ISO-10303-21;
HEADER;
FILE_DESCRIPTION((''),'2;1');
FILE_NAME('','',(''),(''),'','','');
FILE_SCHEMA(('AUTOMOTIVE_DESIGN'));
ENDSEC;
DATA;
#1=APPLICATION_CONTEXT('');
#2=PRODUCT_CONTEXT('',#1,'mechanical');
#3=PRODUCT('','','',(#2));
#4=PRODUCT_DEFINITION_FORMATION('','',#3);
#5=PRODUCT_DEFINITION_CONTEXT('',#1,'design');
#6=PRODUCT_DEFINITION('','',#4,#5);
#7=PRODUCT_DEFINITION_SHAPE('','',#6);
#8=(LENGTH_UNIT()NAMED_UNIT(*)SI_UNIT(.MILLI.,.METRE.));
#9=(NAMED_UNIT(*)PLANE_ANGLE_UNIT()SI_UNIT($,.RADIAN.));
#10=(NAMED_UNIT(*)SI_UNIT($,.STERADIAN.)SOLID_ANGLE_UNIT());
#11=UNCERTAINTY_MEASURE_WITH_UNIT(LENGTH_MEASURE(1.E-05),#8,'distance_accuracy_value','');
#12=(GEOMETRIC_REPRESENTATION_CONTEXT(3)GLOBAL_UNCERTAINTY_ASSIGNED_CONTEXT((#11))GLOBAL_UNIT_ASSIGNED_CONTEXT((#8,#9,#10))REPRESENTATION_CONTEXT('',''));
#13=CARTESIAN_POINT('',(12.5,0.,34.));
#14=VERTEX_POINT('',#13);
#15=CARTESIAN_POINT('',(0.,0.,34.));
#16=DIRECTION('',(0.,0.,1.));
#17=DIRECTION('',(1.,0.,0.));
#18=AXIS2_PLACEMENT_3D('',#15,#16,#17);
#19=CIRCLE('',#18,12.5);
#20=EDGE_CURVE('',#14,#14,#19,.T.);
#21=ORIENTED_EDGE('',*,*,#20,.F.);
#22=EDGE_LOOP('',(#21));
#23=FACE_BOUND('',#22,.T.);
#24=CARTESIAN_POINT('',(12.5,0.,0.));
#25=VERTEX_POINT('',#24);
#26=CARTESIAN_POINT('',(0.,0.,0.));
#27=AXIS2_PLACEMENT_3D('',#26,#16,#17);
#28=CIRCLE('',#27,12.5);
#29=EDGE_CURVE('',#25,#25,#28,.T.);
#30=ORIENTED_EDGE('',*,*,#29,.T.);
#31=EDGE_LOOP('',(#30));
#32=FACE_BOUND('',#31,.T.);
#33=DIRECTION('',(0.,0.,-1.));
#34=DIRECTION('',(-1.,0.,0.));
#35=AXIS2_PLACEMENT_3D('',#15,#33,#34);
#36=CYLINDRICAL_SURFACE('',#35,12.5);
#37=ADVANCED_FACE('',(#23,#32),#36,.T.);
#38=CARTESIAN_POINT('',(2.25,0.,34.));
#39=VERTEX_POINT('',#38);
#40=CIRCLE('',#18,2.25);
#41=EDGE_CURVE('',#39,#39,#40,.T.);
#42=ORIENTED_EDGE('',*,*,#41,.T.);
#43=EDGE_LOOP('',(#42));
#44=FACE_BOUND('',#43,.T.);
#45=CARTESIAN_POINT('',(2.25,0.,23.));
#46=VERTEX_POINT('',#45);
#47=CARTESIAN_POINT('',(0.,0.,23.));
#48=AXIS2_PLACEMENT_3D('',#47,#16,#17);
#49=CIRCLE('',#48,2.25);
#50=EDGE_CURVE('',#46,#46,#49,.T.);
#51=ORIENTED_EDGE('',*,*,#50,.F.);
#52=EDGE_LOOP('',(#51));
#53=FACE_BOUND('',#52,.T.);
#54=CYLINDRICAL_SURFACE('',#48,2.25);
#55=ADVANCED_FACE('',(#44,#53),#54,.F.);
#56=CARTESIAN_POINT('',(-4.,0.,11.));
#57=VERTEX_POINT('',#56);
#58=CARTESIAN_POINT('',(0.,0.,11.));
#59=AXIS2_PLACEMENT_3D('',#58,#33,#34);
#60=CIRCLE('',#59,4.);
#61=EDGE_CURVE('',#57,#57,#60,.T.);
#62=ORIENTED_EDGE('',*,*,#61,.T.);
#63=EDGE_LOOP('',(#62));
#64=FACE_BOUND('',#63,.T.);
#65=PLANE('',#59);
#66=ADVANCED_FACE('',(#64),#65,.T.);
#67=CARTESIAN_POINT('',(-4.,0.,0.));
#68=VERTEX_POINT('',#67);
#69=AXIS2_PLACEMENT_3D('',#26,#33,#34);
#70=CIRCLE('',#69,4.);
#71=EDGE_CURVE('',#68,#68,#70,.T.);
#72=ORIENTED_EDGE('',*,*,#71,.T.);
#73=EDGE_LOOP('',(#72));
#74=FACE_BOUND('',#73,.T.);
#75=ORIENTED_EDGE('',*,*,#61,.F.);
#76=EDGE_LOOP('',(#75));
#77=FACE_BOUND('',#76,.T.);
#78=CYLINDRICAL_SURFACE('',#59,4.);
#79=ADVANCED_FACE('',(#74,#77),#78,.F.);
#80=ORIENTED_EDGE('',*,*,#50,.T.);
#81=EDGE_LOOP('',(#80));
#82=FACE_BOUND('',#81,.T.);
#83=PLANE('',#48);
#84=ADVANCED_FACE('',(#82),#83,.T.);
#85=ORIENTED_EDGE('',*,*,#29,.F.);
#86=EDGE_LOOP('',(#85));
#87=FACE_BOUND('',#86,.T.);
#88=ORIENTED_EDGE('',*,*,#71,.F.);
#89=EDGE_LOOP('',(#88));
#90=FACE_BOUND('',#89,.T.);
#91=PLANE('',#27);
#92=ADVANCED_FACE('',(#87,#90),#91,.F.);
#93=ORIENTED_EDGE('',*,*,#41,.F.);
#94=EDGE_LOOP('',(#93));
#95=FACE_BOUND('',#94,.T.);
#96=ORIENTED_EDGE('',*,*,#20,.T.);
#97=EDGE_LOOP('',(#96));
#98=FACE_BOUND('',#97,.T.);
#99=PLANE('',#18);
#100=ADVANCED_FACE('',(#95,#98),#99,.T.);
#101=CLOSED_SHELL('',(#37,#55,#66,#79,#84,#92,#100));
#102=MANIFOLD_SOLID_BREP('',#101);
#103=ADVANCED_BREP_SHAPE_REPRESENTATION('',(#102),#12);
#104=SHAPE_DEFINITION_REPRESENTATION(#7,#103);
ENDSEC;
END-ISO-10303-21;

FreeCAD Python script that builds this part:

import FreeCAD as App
import Part
import Sketcher

V = App.Vector

doc = App.newDocument("Part")
body = doc.addObject("PartDesign::Body", "Body")

sketch1 = body.newObject("Sketcher::SketchObject", "Sketch")
sketch1.AttachmentSupport = (doc.getObject("XY_Plane"), [""])
sketch1.MapMode = "FlatFace"
sketch1.addGeometry(Part.Circle(V(0, 0, 0), V(0, 0, 1), 12), False)
sketch1.addConstraint([
    Sketcher.Constraint("Coincident", 0, 3, -1, 1),
    Sketcher.Constraint("Diameter", 0, 25.0),
])
pad1 = body.newObject("PartDesign::Pad", "Pad")
pad1.Profile = sketch1
pad1.Length = 34

sketch2 = body.newObject("Sketcher::SketchObject", "Sketch001")
sketch2.AttachmentSupport = (doc.getObject("XY_Plane"), [""])
sketch2.MapMode = "FlatFace"
sketch2.AttachmentOffset = App.Placement(V(0, 0, 34), App.Rotation())
sketch2.addGeometry(Part.Circle(V(0, 0, 0), V(0, 0, 1), 2.2), False)
sketch2.addConstraint([
    Sketcher.Constraint("Coincident", 0, 3, -1, 1),
    Sketcher.Constraint("Diameter", 0, 4.5),
])
pocket1 = body.newObject("PartDesign::Pocket", "Pocket")
pocket1.Profile = sketch2
pocket1.Length = 11

sketch3 = body.newObject("Sketcher::SketchObject", "Sketch002")
sketch3.AttachmentSupport = (doc.getObject("XY_Plane"), [""])
sketch3.MapMode = "FlatFace"
sketch3.addGeometry(Part.Circle(V(0, 0, 0), V(0, 0, 1), 4), False)
sketch3.addConstraint([
    Sketcher.Constraint("Coincident", 0, 3, -1, 1),
    Sketcher.Constraint("Diameter", 0, 8.0),
])
pocket2 = body.newObject("PartDesign::Pocket", "Pocket001")
pocket2.Profile = sketch3
pocket2.Length = 11
pocket2.Reversed = True

doc.recompute()
